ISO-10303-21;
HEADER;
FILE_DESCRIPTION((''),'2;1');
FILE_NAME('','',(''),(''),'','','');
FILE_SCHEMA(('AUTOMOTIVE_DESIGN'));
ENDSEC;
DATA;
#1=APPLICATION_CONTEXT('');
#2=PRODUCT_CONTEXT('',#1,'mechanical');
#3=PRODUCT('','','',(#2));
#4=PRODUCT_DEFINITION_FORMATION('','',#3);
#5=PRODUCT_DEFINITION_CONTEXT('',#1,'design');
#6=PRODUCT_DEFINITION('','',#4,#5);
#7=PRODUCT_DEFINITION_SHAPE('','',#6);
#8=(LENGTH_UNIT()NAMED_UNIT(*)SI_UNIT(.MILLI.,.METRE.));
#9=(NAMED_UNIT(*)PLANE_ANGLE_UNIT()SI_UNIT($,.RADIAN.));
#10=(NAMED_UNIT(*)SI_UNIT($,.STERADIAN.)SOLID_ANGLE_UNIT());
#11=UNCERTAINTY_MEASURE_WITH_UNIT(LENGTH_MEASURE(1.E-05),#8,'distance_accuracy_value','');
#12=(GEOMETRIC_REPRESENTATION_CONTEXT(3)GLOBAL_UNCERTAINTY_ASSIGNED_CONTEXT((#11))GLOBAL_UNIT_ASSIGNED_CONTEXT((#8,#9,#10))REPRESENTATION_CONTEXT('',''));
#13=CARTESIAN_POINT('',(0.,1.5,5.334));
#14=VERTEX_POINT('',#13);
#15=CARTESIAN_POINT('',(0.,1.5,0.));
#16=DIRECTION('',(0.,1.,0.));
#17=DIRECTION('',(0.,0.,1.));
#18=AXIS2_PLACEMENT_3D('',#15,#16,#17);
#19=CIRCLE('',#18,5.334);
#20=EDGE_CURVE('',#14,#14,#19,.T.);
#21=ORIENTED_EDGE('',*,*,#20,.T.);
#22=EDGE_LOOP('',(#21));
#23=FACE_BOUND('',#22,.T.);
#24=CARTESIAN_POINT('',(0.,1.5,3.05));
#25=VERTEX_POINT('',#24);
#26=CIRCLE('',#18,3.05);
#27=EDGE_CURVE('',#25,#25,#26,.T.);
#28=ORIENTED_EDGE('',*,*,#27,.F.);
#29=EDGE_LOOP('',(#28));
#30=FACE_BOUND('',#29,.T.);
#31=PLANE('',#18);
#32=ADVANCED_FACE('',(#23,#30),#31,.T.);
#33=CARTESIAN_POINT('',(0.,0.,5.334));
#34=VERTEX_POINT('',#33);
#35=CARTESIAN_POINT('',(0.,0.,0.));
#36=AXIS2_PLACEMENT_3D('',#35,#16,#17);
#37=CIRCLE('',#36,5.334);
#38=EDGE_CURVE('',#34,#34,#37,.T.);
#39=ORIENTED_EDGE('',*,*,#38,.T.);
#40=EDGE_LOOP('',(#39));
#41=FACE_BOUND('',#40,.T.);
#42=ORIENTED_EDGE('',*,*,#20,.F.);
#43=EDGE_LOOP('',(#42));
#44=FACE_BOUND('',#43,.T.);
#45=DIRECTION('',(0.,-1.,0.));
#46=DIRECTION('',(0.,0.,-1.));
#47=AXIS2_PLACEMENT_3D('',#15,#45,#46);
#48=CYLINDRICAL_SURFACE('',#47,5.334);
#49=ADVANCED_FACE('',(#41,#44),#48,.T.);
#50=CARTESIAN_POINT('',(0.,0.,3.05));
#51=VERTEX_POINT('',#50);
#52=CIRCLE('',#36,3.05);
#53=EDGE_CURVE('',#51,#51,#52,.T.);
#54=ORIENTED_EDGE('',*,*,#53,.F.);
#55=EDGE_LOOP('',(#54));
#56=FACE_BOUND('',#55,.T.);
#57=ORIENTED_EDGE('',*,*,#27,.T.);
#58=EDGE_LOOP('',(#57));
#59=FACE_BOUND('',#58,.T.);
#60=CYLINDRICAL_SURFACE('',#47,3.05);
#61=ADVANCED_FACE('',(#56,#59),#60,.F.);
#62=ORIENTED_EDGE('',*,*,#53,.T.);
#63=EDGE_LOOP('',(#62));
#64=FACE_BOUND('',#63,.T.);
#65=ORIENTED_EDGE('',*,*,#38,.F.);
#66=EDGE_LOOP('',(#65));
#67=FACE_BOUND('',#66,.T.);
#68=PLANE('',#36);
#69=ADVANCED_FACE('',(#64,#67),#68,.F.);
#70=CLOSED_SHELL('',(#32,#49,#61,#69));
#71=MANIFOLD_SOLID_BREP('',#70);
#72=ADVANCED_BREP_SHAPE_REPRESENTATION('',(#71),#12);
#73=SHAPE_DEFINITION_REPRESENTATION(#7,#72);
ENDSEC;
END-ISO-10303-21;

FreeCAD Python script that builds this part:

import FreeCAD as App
import Part
import Sketcher
Q = App.Units.Quantity

doc = App.newDocument("Part")
body = doc.addObject("PartDesign::Body", "Body")

sketch1 = body.newObject("Sketcher::SketchObject", "Sketch")
sketch1.AttachmentSupport = (doc.getObject("XZ_Plane"), [""])
sketch1.MapMode = "FlatFace"
sketch1.addGeometry(Part.Circle(App.Vector(0, 0, 0), App.Vector(0, 0, 1), 5.3), False)
sketch1.addGeometry(Part.Circle(App.Vector(0, 0, 0), App.Vector(0, 0, 1), 3), False)
sketch1.addConstraint(Sketcher.Constraint("Coincident", 0, 3, -1, 1))
sketch1.addConstraint(Sketcher.Constraint("Coincident", 1, 3, -1, 1))
sketch1.addConstraint(Sketcher.Constraint("Diameter", 1, Q("6.1 mm")))
sketch1.addConstraint(Sketcher.Constraint("Diameter", 0, Q("10.668 mm")))
pad1 = body.newObject("PartDesign::Pad", "Pad")
pad1.Profile = sketch1
pad1.Length = 1.5
pad1.Reversed = True

doc.recompute()
